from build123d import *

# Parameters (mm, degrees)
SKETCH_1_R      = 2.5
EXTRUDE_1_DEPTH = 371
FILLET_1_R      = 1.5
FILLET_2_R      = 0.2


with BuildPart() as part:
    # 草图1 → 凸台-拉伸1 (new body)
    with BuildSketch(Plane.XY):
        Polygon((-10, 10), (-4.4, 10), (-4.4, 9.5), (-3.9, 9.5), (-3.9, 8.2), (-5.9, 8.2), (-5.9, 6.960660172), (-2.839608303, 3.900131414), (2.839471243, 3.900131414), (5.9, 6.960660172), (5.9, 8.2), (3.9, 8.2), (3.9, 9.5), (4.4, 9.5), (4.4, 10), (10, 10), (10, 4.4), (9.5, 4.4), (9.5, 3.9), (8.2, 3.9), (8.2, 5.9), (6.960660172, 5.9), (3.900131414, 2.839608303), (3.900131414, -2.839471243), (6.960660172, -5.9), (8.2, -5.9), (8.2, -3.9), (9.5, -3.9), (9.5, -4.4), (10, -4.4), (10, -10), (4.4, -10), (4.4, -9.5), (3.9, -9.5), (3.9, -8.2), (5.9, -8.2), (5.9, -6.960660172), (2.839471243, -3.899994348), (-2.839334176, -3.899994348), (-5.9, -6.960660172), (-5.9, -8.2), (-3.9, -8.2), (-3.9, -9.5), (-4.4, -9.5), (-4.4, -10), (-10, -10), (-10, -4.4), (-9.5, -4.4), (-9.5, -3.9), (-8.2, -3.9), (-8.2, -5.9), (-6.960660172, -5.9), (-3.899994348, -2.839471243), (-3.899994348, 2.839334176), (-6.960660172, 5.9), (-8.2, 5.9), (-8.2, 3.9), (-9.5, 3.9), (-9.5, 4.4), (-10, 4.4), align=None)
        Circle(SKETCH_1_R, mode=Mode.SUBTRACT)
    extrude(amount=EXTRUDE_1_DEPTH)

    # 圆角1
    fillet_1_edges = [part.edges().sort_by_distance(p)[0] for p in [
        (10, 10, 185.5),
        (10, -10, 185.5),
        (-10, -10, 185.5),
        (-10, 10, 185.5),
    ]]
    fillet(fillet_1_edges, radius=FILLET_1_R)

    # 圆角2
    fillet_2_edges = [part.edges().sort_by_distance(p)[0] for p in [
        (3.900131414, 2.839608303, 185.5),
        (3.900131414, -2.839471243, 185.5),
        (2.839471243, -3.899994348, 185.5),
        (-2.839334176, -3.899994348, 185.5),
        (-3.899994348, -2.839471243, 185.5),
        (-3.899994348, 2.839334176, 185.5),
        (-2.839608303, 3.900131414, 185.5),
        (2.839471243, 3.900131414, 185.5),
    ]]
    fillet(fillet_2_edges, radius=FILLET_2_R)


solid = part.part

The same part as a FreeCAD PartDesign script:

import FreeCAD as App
import Part
import Sketcher

V = App.Vector
Q = App.Units.Quantity


def edges_at(feature, points):
    """Names of the edges that pass closest to the given points."""
    edges = feature.Shape.Edges
    near = lambda p: min(range(len(edges)), key=lambda i: edges[i].distToShape(Part.Vertex(*p))[0])
    return sorted({f"Edge{near(p) + 1}" for p in points})

doc = App.newDocument("Part")
body = doc.addObject("PartDesign::Body", "Body")

sketch1 = doc.addObject("Sketcher::SketchObject", "Sketch")
body.addObject(sketch1)
sketch1.AttachmentSupport = (doc.XY_Plane, [""])
sketch1.MapMode = "FlatFace"
sketch1.addGeometry([
    Part.LineSegment(V(-4.4, 10, 0), V(-10, 10, 0)),
    Part.LineSegment(V(-10, 10, 0), V(-10, 4.4, 0)),
    Part.LineSegment(V(-10, 4.4, 0), V(-9.5, 4.4, 0)),
    Part.LineSegment(V(-9.5, 4.4, 0), V(-9.5, 3.9, 0)),
    Part.LineSegment(V(-9.5, 3.9, 0), V(-8.2, 3.9, 0)),
    Part.LineSegment(V(-8.2, 3.9, 0), V(-8.2, 5.9, 0)),
    Part.LineSegment(V(-8.2, 5.9, 0), V(-7, 5.9, 0)),
    Part.LineSegment(V(-7, 5.9, 0), V(-3.9, 2.8, 0)),
    Part.LineSegment(V(-3.9, 2.8, 0), V(-3.9, -2.8, 0)),
    Part.LineSegment(V(-3.9, -2.8, 0), V(-7, -5.9, 0)),
    Part.LineSegment(V(-7, -5.9, 0), V(-8.2, -5.9, 0)),
    Part.LineSegment(V(-8.2, -5.9, 0), V(-8.2, -3.9, 0)),
    Part.LineSegment(V(-8.2, -3.9, 0), V(-9.5, -3.9, 0)),
    Part.LineSegment(V(-9.5, -3.9, 0), V(-9.5, -4.4, 0)),
    Part.LineSegment(V(-9.5, -4.4, 0), V(-10, -4.4, 0)),
    Part.LineSegment(V(-10, -4.4, 0), V(-10, -10, 0)),
    Part.LineSegment(V(-10, -10, 0), V(-4.4, -10, 0)),
    Part.LineSegment(V(-4.4, -10, 0), V(-4.4, -9.5, 0)),
    Part.LineSegment(V(-4.4, -9.5, 0), V(-3.9, -9.5, 0)),
    Part.LineSegment(V(-3.9, -9.5, 0), V(-3.9, -8.2, 0)),
    Part.LineSegment(V(-3.9, -8.2, 0), V(-5.9, -8.2, 0)),
    Part.LineSegment(V(-5.9, -8.2, 0), V(-5.9, -7, 0)),
    Part.LineSegment(V(-5.9, -7, 0), V(-2.8, -3.9, 0)),
    Part.LineSegment(V(-2.8, -3.9, 0), V(2.8, -3.9, 0)),
    Part.LineSegment(V(2.8, -3.9, 0), V(5.9, -7, 0)),
    Part.LineSegment(V(5.9, -7, 0), V(5.9, -8.2, 0)),
    Part.LineSegment(V(5.9, -8.2, 0), V(3.9, -8.2, 0)),
    Part.LineSegment(V(3.9, -8.2, 0), V(3.9, -9.5, 0)),
    Part.LineSegment(V(3.9, -9.5, 0), V(4.4, -9.5, 0)),
    Part.LineSegment(V(4.4, -9.5, 0), V(4.4, -10, 0)),
    Part.LineSegment(V(4.4, -10, 0), V(10, -10, 0)),
    Part.LineSegment(V(10, -10, 0), V(10, -4.4, 0)),
    Part.LineSegment(V(10, -4.4, 0), V(9.5, -4.4, 0)),
    Part.LineSegment(V(9.5, -4.4, 0), V(9.5, -3.9, 0)),
    Part.LineSegment(V(9.5, -3.9, 0), V(8.2, -3.9, 0)),
    Part.LineSegment(V(8.2, -3.9, 0), V(8.2, -5.9, 0)),
    Part.LineSegment(V(8.2, -5.9, 0), V(7, -5.9, 0)),
    Part.LineSegment(V(7, -5.9, 0), V(3.9, -2.8, 0)),
    Part.LineSegment(V(3.9, -2.8, 0), V(3.9, 2.8, 0)),
    Part.LineSegment(V(3.9, 2.8, 0), V(7, 5.9, 0)),
    Part.LineSegment(V(7, 5.9, 0), V(8.2, 5.9, 0)),
    Part.LineSegment(V(8.2, 5.9, 0), V(8.2, 3.9, 0)),
    Part.LineSegment(V(8.2, 3.9, 0), V(9.5, 3.9, 0)),
    Part.LineSegment(V(9.5, 3.9, 0), V(9.5, 4.4, 0)),
    Part.LineSegment(V(9.5, 4.4, 0), V(10, 4.4, 0)),
    Part.LineSegment(V(10, 4.4, 0), V(10, 10, 0)),
    Part.LineSegment(V(10, 10, 0), V(4.4, 10, 0)),
    Part.LineSegment(V(4.4, 10, 0), V(4.4, 9.5, 0)),
    Part.LineSegment(V(4.4, 9.5, 0), V(3.9, 9.5, 0)),
    Part.LineSegment(V(3.9, 9.5, 0), V(3.9, 8.2, 0)),
    Part.LineSegment(V(3.9, 8.2, 0), V(5.9, 8.2, 0)),
    Part.LineSegment(V(5.9, 8.2, 0), V(5.9, 7, 0)),
    Part.LineSegment(V(5.9, 7, 0), V(2.8, 3.9, 0)),
    Part.LineSegment(V(2.8, 3.9, 0), V(-2.8, 3.9, 0)),
    Part.LineSegment(V(-2.8, 3.9, 0), V(-5.9, 7, 0)),
    Part.LineSegment(V(-5.9, 7, 0), V(-5.9, 8.2, 0)),
    Part.LineSegment(V(-5.9, 8.2, 0), V(-3.9, 8.2, 0)),
    Part.LineSegment(V(-3.9, 8.2, 0), V(-3.9, 9.5, 0)),
    Part.LineSegment(V(-3.9, 9.5, 0), V(-4.4, 9.5, 0)),
    Part.LineSegment(V(-4.4, 9.5, 0), V(-4.4, 10, 0)),
    Part.Circle(V(0, 0, 0), V(0, 0, 1), 2.5),
], False)
sketch1.addConstraint([
    Sketcher.Constraint("Coincident", 0, 2, 1, 1),
    Sketcher.Constraint("Coincident", 1, 2, 2, 1),
    Sketcher.Constraint("Coincident", 2, 2, 3, 1),
    Sketcher.Constraint("Coincident", 3, 2, 4, 1),
    Sketcher.Constraint("Coincident", 4, 2, 5, 1),
    Sketcher.Constraint("Coincident", 5, 2, 6, 1),
    Sketcher.Constraint("Coincident", 6, 2, 7, 1),
    Sketcher.Constraint("Coincident", 7, 2, 8, 1),
    Sketcher.Constraint("Coincident", 8, 2, 9, 1),
    Sketcher.Constraint("Coincident", 9, 2, 10, 1),
    Sketcher.Constraint("Coincident", 10, 2, 11, 1),
    Sketcher.Constraint("Coincident", 11, 2, 12, 1),
    Sketcher.Constraint("Coincident", 12, 2, 13, 1),
    Sketcher.Constraint("Coincident", 13, 2, 14, 1),
    Sketcher.Constraint("Coincident", 14, 2, 15, 1),
    Sketcher.Constraint("Coincident", 15, 2, 16, 1),
    Sketcher.Constraint("Coincident", 16, 2, 17, 1),
    Sketcher.Constraint("Coincident", 17, 2, 18, 1),
    Sketcher.Constraint("Coincident", 18, 2, 19, 1),
    Sketcher.Constraint("Coincident", 19, 2, 20, 1),
    Sketcher.Constraint("Coincident", 20, 2, 21, 1),
    Sketcher.Constraint("Coincident", 21, 2, 22, 1),
    Sketcher.Constraint("Coincident", 22, 2, 23, 1),
    Sketcher.Constraint("Coincident", 23, 2, 24, 1),
    Sketcher.Constraint("Coincident", 24, 2, 25, 1),
    Sketcher.Constraint("Coincident", 25, 2, 26, 1),
    Sketcher.Constraint("Coincident", 26, 2, 27, 1),
    Sketcher.Constraint("Coincident", 27, 2, 28, 1),
    Sketcher.Constraint("Coincident", 28, 2, 29, 1),
    Sketcher.Constraint("Coincident", 29, 2, 30, 1),
    Sketcher.Constraint("Coincident", 30, 2, 31, 1),
    Sketcher.Constraint("Coincident", 31, 2, 32, 1),
    Sketcher.Constraint("Coincident", 32, 2, 33, 1),
    Sketcher.Constraint("Coincident", 33, 2, 34, 1),
    Sketcher.Constraint("Coincident", 34, 2, 35, 1),
    Sketcher.Constraint("Coincident", 35, 2, 36, 1),
    Sketcher.Constraint("Coincident", 36, 2, 37, 1),
    Sketcher.Constraint("Coincident", 37, 2, 38, 1),
    Sketcher.Constraint("Coincident", 38, 2, 39, 1),
    Sketcher.Constraint("Coincident", 39, 2, 40, 1),
    Sketcher.Constraint("Coincident", 40, 2, 41, 1),
    Sketcher.Constraint("Coincident", 41, 2, 42, 1),
    Sketcher.Constraint("Coincident", 42, 2, 43, 1),
    Sketcher.Constraint("Coincident", 43, 2, 44, 1),
    Sketcher.Constraint("Coincident", 44, 2, 45, 1),
    Sketcher.Constraint("Coincident", 45, 2, 46, 1),
    Sketcher.Constraint("Coincident", 46, 2, 47, 1),
    Sketcher.Constraint("Coincident", 47, 2, 48, 1),
    Sketcher.Constraint("Coincident", 48, 2, 49, 1),
    Sketcher.Constraint("Coincident", 49, 2, 50, 1),
    Sketcher.Constraint("Coincident", 50, 2, 51, 1),
    Sketcher.Constraint("Coincident", 51, 2, 52, 1),
    Sketcher.Constraint("Coincident", 52, 2, 53, 1),
    Sketcher.Constraint("Coincident", 53, 2, 54, 1),
    Sketcher.Constraint("Coincident", 54, 2, 55, 1),
    Sketcher.Constraint("Coincident", 55, 2, 56, 1),
    Sketcher.Constraint("Coincident", 56, 2, 57, 1),
    Sketcher.Constraint("Coincident", 57, 2, 58, 1),
    Sketcher.Constraint("Coincident", 58, 2, 59, 1),
    Sketcher.Constraint("Coincident", 59, 2, 0, 1),
    Sketcher.Constraint("Horizontal", 0),
    Sketcher.Constraint("Vertical", 1),
    Sketcher.Constraint("Horizontal", 2),
    Sketcher.Constraint("Vertical", 3),
    Sketcher.Constraint("Horizontal", 4),
    Sketcher.Constraint("Vertical", 5),
    Sketcher.Constraint("Horizontal", 6),
    Sketcher.Constraint("Vertical", 8),
    Sketcher.Constraint("Horizontal", 10),
    Sketcher.Constraint("Vertical", 11),
    Sketcher.Constraint("Horizontal", 12),
    Sketcher.Constraint("Vertical", 13),
    Sketcher.Constraint("Horizontal", 14),
    Sketcher.Constraint("Vertical", 15),
    Sketcher.Constraint("Horizontal", 16),
    Sketcher.Constraint("Vertical", 17),
    Sketcher.Constraint("Horizontal", 18),
    Sketcher.Constraint("Vertical", 19),
    Sketcher.Constraint("Horizontal", 20),
    Sketcher.Constraint("Vertical", 21),
    Sketcher.Constraint("Horizontal", 23),
    Sketcher.Constraint("Vertical", 25),
    Sketcher.Constraint("Horizontal", 26),
    Sketcher.Constraint("Vertical", 27),
    Sketcher.Constraint("Horizontal", 28),
    Sketcher.Constraint("Vertical", 29),
    Sketcher.Constraint("Horizontal", 30),
    Sketcher.Constraint("Vertical", 31),
    Sketcher.Constraint("Horizontal", 32),
    Sketcher.Constraint("Vertical", 33),
    Sketcher.Constraint("Horizontal", 34),
    Sketcher.Constraint("Vertical", 35),
    Sketcher.Constraint("Horizontal", 36),
    Sketcher.Constraint("Vertical", 38),
    Sketcher.Constraint("Horizontal", 40),
    Sketcher.Constraint("Vertical", 41),
    Sketcher.Constraint("Horizontal", 42),
    Sketcher.Constraint("Vertical", 43),
    Sketcher.Constraint("Horizontal", 44),
    Sketcher.Constraint("Vertical", 45),
    Sketcher.Constraint("Horizontal", 46),
    Sketcher.Constraint("Vertical", 47),
    Sketcher.Constraint("Horizontal", 48),
    Sketcher.Constraint("Vertical", 49),
    Sketcher.Constraint("Horizontal", 50),
    Sketcher.Constraint("Vertical", 51),
    Sketcher.Constraint("Horizontal", 53),
    Sketcher.Constraint("Vertical", 55),
    Sketcher.Constraint("Horizontal", 56),
    Sketcher.Constraint("Vertical", 57),
    Sketcher.Constraint("Horizontal", 58),
    Sketcher.Constraint("Vertical", 59),
    Sketcher.Constraint("Coincident", 60, 3, -1, 1),
    Sketcher.Constraint("Symmetric", 0, 2, 30, 2, -1, 1),
    Sketcher.Constraint("Symmetric", 2, 2, 32, 2, -1, 1),
    Sketcher.Constraint("Symmetric", 4, 2, 34, 2, -1, 1),
    Sketcher.Constraint("Symmetric", 6, 2, 36, 2, -1, 1),
    Sketcher.Constraint("Symmetric", 9, 2, 39, 2, -1, 1),
    Sketcher.Constraint("Symmetric", 11, 2, 41, 2, -1, 1),
    Sketcher.Constraint("Symmetric", 13, 2, 43, 2, -1, 1),
    Sketcher.Constraint("Symmetric", 15, 2, 45, 2, -1, 1),
    Sketcher.Constraint("Symmetric", 17, 2, 47, 2, -1, 1),
    Sketcher.Constraint("Symmetric", 19, 2, 49, 2, -1, 1),
    Sketcher.Constraint("Symmetric", 21, 2, 51, 2, -1, 1),
    Sketcher.Constraint("Symmetric", 24, 2, 54, 2, -1, 1),
    Sketcher.Constraint("Symmetric", 26, 2, 56, 2, -1, 1),
    Sketcher.Constraint("Symmetric", 28, 2, 58, 2, -1, 1),
    Sketcher.Constraint("Symmetric", 21, 2, 24, 2, -2),
    Sketcher.Constraint("Symmetric", 19, 2, 26, 2, -2),
    Sketcher.Constraint("Symmetric", 17, 2, 28, 2, -2),
    Sketcher.Constraint("Symmetric", 15, 2, 30, 2, -2),
    Sketcher.Constraint("Symmetric", 13, 2, 32, 2, -2),
    Sketcher.Constraint("Symmetric", 11, 2, 34, 2, -2),
    Sketcher.Constraint("Symmetric", 9, 2, 36, 2, -2),
    Sketcher.Constraint("Perpendicular", 7, 22),
    Sketcher.Constraint("Perpendicular", 9, 24),
    Sketcher.Constraint("Perpendicular", 22, 37),
    Sketcher.Constraint("Perpendicular", 24, 39),
    Sketcher.Constraint("Perpendicular", 37, 52),
    Sketcher.Constraint("Perpendicular", 39, 54),
    Sketcher.Constraint("Horizontal", 8, 2, 37, 2),
    Sketcher.Constraint("Vertical", 23, 2, 52, 2),
    Sketcher.Constraint("Equal", 14, 18),
    Sketcher.Constraint("Equal", 46, 1),
    Sketcher.Constraint("Equal", 58, 3),
    Sketcher.Constraint("Equal", 56, 5),
    Sketcher.Constraint("Equal", 23, 8),
    Sketcher.Constraint("Equal", 13, 17),
    Sketcher.Constraint("Equal", 42, 19),
    Sketcher.Constraint("Equal", 40, 21),
    Sketcher.Constraint("Equal", 7, 22),
    Sketcher.Constraint("Diameter", 60, 5.0),
    Sketcher.Constraint("DistanceX", 20, 2, 20, 1, 2.0),
    Sketcher.Constraint("Angle", 7, Q("-45 deg")),
    Sketcher.Constraint("DistanceX", 0, 2, 0, 1, 5.6),
    Sketcher.Constraint("DistanceX", 2, 1, 2, 2, 0.5),
    Sketcher.Constraint("DistanceX", 4, 1, 4, 2, 1.3),
    Sketcher.Constraint("DistanceX", 0, 2, -1, 1, 10.0),
    Sketcher.Constraint("DistanceX", 6, 1, 6, 2, 1.23934),
    Sketcher.Constraint("DistanceX", 53, 2, 53, 1, 5.67908),
    Sketcher.Constraint("Distance", 9, 4.328338),
])
pad1 = doc.addObject("PartDesign::Pad", "Pad")
body.addObject(pad1)
pad1.Profile = sketch1
pad1.Length = 371
doc.recompute()

fillet = doc.addObject("PartDesign::Fillet", "Fillet")
body.addObject(fillet)
fillet.Base = (pad1, edges_at(pad1, [
    (10, 10, 185.5),
    (10, -10, 185.5),
    (-10, -10, 185.5),
    (-10, 10, 185.5),
]))
fillet.Radius = 1.5
doc.recompute()

fillet2 = doc.addObject("PartDesign::Fillet", "Fillet001")
body.addObject(fillet2)
fillet2.Base = (fillet, edges_at(fillet, [
    (3.9, 2.84, 185.5),
    (3.9, -2.839, 185.5),
    (2.839, -3.9, 185.5),
    (-2.839, -3.9, 185.5),
    (-3.9, -2.839, 185.5),
    (-3.9, 2.839, 185.5),
    (-2.84, 3.9, 185.5),
    (2.839, 3.9, 185.5),
]))
fillet2.Radius = 0.2

doc.recompute()
